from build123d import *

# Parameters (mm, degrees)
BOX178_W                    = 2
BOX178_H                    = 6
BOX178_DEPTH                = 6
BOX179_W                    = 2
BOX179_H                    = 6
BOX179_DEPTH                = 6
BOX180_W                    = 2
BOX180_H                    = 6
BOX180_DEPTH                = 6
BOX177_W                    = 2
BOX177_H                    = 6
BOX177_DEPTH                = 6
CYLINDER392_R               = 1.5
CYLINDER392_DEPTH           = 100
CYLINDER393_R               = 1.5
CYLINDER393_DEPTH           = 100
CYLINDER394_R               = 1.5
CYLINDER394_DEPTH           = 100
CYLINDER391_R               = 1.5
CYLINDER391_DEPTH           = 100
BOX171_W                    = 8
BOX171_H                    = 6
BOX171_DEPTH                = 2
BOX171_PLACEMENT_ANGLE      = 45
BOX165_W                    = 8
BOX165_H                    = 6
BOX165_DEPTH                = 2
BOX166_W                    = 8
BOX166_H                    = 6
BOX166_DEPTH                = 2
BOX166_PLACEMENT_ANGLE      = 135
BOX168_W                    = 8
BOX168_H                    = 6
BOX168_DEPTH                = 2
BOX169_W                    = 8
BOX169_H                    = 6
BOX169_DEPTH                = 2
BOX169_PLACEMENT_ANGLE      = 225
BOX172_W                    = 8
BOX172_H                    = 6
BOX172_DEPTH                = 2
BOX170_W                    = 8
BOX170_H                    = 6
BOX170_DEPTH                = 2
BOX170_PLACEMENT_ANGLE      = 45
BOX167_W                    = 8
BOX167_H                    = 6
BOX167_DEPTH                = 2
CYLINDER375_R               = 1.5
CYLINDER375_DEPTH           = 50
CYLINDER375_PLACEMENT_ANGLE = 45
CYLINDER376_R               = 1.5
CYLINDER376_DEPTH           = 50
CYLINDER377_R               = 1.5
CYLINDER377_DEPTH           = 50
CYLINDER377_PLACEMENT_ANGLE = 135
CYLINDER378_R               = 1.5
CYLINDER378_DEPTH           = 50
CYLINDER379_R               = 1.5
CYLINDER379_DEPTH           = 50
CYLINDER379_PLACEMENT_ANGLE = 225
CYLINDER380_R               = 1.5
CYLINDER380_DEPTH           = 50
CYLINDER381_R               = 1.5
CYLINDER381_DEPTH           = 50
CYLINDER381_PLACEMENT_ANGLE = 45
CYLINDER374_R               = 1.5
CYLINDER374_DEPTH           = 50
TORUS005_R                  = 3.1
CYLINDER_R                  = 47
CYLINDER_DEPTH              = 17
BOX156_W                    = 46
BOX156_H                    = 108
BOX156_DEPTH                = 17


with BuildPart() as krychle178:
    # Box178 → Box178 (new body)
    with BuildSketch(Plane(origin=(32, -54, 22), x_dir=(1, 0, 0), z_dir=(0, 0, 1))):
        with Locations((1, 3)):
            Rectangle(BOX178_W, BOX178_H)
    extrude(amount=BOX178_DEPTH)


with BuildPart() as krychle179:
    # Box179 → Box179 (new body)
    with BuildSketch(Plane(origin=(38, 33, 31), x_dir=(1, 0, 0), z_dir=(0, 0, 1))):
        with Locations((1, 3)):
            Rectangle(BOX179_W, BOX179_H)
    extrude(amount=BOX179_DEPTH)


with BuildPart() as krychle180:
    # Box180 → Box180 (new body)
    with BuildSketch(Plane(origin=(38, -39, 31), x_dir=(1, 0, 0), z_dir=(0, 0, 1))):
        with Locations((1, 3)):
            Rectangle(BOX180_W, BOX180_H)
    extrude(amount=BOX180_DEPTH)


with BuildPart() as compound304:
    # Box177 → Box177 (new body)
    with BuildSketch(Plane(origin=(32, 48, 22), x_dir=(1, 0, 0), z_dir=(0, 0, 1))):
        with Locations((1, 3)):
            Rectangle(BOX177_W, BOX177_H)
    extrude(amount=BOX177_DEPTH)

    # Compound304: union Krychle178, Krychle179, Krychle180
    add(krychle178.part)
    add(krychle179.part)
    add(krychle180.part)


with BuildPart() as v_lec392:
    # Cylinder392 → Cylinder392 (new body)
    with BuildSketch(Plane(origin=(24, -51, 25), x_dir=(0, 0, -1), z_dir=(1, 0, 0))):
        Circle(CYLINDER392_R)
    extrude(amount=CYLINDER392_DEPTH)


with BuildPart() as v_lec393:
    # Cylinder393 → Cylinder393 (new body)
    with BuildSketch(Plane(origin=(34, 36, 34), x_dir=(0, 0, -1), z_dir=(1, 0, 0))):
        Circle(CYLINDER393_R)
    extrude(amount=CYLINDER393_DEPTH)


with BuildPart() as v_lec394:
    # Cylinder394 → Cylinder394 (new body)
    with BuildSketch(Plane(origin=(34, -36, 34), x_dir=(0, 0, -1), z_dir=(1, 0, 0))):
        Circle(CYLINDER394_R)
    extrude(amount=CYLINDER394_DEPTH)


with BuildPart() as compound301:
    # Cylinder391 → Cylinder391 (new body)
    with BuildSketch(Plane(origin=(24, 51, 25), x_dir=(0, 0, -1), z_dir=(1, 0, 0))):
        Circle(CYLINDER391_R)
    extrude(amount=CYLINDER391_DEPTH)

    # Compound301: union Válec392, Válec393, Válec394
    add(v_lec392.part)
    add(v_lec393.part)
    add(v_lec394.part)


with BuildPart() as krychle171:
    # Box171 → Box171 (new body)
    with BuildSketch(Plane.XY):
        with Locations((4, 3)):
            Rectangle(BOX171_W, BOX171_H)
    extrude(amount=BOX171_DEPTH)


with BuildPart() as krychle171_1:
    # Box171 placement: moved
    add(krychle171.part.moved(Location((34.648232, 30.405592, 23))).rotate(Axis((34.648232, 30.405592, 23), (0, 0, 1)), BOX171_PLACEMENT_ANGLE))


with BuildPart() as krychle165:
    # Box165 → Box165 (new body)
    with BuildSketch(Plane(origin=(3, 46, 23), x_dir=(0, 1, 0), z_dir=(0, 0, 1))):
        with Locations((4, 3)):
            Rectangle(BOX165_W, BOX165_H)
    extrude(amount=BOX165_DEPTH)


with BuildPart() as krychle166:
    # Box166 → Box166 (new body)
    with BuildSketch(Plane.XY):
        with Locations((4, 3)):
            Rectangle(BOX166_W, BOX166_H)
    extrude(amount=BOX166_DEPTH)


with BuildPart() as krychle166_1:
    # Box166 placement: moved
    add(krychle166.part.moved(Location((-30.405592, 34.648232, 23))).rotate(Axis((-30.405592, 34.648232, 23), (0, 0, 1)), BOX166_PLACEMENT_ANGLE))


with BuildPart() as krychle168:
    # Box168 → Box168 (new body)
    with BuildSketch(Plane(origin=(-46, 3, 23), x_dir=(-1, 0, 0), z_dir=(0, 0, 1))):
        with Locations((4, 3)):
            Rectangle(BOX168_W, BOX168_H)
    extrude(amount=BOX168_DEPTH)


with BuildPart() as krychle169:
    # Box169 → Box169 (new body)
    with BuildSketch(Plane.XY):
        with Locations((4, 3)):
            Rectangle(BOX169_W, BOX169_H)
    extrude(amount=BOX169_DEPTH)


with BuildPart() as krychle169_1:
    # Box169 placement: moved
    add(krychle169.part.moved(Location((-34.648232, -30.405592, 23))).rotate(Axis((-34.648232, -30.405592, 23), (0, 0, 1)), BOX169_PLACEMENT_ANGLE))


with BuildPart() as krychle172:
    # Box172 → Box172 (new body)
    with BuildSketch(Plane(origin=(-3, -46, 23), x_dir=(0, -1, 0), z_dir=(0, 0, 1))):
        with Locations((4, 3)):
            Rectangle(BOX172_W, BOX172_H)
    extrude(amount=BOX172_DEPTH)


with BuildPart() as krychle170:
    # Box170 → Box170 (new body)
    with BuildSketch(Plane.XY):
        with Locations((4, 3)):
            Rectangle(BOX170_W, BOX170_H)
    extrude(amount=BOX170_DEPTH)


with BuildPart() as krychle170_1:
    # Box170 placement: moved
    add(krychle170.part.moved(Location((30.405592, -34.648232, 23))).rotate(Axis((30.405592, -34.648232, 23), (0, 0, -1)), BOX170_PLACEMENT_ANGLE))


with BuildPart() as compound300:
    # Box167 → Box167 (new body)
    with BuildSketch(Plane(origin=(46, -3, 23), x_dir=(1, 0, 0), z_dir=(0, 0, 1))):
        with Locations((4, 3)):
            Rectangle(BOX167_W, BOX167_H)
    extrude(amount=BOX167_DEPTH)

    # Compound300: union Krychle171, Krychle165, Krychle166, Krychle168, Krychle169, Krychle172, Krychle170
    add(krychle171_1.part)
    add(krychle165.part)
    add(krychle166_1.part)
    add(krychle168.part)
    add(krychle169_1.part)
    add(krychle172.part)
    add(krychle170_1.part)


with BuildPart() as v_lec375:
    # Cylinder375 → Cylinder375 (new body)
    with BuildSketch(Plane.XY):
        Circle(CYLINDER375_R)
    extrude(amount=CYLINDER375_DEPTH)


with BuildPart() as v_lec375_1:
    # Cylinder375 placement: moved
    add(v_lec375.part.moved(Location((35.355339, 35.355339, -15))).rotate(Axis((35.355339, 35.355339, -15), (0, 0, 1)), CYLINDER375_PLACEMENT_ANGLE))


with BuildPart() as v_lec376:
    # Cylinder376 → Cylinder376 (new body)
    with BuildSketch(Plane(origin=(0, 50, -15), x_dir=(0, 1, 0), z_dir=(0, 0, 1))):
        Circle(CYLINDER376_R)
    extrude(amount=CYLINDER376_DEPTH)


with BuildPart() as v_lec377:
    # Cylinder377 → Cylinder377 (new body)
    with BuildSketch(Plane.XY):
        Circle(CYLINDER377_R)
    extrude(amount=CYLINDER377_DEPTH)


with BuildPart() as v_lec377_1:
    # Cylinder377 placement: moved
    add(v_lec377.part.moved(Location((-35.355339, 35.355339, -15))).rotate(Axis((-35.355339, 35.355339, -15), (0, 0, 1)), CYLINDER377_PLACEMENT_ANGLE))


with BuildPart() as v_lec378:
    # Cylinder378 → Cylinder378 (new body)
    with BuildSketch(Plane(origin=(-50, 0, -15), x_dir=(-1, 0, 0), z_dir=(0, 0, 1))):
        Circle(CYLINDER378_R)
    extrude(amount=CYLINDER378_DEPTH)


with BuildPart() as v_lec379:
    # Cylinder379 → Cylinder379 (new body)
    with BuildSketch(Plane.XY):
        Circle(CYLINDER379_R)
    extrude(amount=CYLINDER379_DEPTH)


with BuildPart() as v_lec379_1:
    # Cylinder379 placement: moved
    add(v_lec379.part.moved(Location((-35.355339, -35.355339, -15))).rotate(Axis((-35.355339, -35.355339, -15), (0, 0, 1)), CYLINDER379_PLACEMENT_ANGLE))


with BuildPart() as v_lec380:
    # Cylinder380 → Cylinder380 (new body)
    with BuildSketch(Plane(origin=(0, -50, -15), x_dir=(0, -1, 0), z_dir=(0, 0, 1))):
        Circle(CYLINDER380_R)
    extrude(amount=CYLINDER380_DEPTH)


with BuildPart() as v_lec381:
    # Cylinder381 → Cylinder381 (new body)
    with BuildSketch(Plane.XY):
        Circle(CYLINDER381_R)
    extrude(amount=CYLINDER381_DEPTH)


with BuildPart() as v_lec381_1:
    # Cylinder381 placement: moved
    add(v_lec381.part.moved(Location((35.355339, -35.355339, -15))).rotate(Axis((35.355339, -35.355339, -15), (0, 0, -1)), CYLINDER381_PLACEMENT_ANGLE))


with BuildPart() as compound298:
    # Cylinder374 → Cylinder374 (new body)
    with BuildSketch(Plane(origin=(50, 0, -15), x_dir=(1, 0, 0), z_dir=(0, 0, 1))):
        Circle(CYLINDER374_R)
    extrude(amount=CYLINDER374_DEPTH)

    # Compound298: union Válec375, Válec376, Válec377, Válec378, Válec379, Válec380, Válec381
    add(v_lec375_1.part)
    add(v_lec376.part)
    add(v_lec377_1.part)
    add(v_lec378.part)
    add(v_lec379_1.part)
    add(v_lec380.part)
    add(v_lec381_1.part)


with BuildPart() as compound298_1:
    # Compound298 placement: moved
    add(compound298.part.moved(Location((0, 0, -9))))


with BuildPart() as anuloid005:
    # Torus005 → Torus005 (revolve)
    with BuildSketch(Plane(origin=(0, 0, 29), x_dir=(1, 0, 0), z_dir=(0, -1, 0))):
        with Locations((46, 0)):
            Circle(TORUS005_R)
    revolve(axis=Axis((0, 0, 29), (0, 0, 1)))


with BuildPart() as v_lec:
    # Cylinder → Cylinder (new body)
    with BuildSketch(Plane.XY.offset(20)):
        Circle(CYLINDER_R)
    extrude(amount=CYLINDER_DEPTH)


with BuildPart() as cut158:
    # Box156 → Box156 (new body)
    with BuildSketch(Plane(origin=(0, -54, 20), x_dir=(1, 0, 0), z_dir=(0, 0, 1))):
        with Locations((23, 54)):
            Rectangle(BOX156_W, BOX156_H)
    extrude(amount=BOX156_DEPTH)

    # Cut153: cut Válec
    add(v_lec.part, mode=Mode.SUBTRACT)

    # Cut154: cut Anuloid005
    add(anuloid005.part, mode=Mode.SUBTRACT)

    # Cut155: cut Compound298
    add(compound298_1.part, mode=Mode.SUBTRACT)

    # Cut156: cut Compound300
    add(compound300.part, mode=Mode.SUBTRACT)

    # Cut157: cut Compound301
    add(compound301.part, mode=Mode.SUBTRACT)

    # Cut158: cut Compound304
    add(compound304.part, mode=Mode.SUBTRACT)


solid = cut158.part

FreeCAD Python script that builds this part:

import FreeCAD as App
import Part
import Sketcher

V = App.Vector

doc = App.newDocument("Part")
body = doc.addObject("PartDesign::Body", "Body")

# Sketch on XY plane
sketch1 = body.newObject("Sketcher::SketchObject", "Sketch")
sketch1.AttachmentSupport = (doc.getObject("XY_Plane"), [""])
sketch1.MapMode = "FlatFace"
sketch1.AttachmentOffset = App.Placement(V(0, 0, 22), App.Rotation())
sketch1.addGeometry(Part.LineSegment(V(32, -48, 0), V(32, -54, 0)), False)
sketch1.addGeometry(Part.LineSegment(V(32, -54, 0), V(34, -54, 0)), False)
sketch1.addGeometry(Part.LineSegment(V(34, -54, 0), V(34, -48, 0)), False)
sketch1.addGeometry(Part.LineSegment(V(34, -48, 0), V(32, -48, 0)), False)
sketch1.addConstraint(Sketcher.Constraint("Coincident", 0, 2, 1, 1))
sketch1.addConstraint(Sketcher.Constraint("Coincident", 1, 2, 2, 1))
sketch1.addConstraint(Sketcher.Constraint("Coincident", 2, 2, 3, 1))
sketch1.addConstraint(Sketcher.Constraint("Coincident", 3, 2, 0, 1))
sketch1.addConstraint(Sketcher.Constraint("Vertical", 0))
sketch1.addConstraint(Sketcher.Constraint("Horizontal", 1))
sketch1.addConstraint(Sketcher.Constraint("Vertical", 2))
sketch1.addConstraint(Sketcher.Constraint("Horizontal", 3))
sketch1.addConstraint(Sketcher.Constraint("DistanceX", 1, 1, 1, 2, 2.0))
sketch1.addConstraint(Sketcher.Constraint("DistanceY", 0, 2, 0, 1, 6.0))
sketch1.addConstraint(Sketcher.Constraint("DistanceX", -1, 1, 0, 2, 32.0))
sketch1.addConstraint(Sketcher.Constraint("DistanceY", 0, 2, -1, 1, 54.0))
pad1 = body.newObject("PartDesign::Pad", "Pad")
pad1.Profile = sketch1
pad1.Length = 6
body2 = doc.addObject("PartDesign::Body", "Body001")

# Sketch on XY plane
sketch2 = body2.newObject("Sketcher::SketchObject", "Sketch001")
sketch2.AttachmentSupport = (doc.getObject("XY_Plane001"), [""])
sketch2.MapMode = "FlatFace"
sketch2.AttachmentOffset = App.Placement(V(0, 0, 31), App.Rotation())
sketch2.addGeometry(Part.LineSegment(V(38, 39, 0), V(38, 33, 0)), False)
sketch2.addGeometry(Part.LineSegment(V(38, 33, 0), V(40, 33, 0)), False)
sketch2.addGeometry(Part.LineSegment(V(40, 33, 0), V(40, 39, 0)), False)
sketch2.addGeometry(Part.LineSegment(V(40, 39, 0), V(38, 39, 0)), False)
sketch2.addConstraint(Sketcher.Constraint("Coincident", 0, 2, 1, 1))
sketch2.addConstraint(Sketcher.Constraint("Coincident", 1, 2, 2, 1))
sketch2.addConstraint(Sketcher.Constraint("Coincident", 2, 2, 3, 1))
sketch2.addConstraint(Sketcher.Constraint("Coincident", 3, 2, 0, 1))
sketch2.addConstraint(Sketcher.Constraint("Vertical", 0))
sketch2.addConstraint(Sketcher.Constraint("Horizontal", 1))
sketch2.addConstraint(Sketcher.Constraint("Vertical", 2))
sketch2.addConstraint(Sketcher.Constraint("Horizontal", 3))
sketch2.addConstraint(Sketcher.Constraint("DistanceX", 1, 1, 1, 2, 2.0))
sketch2.addConstraint(Sketcher.Constraint("DistanceY", 0, 2, 0, 1, 6.0))
sketch2.addConstraint(Sketcher.Constraint("DistanceX", -1, 1, 0, 2, 38.0))
sketch2.addConstraint(Sketcher.Constraint("DistanceY", -1, 1, 0, 2, 33.0))
pad2 = body2.newObject("PartDesign::Pad", "Pad001")
pad2.Profile = sketch2
pad2.Length = 6
body3 = doc.addObject("PartDesign::Body", "Body002")

# Sketch on XY plane
sketch3 = body3.newObject("Sketcher::SketchObject", "Sketch002")
sketch3.AttachmentSupport = (doc.getObject("XY_Plane002"), [""])
sketch3.MapMode = "FlatFace"
sketch3.AttachmentOffset = App.Placement(V(0, 0, 31), App.Rotation())
sketch3.addGeometry(Part.LineSegment(V(38, -33, 0), V(38, -39, 0)), False)
sketch3.addGeometry(Part.LineSegment(V(38, -39, 0), V(40, -39, 0)), False)
sketch3.addGeometry(Part.LineSegment(V(40, -39, 0), V(40, -33, 0)), False)
sketch3.addGeometry(Part.LineSegment(V(40, -33, 0), V(38, -33, 0)), False)
sketch3.addConstraint(Sketcher.Constraint("Coincident", 0, 2, 1, 1))
sketch3.addConstraint(Sketcher.Constraint("Coincident", 1, 2, 2, 1))
sketch3.addConstraint(Sketcher.Constraint("Coincident", 2, 2, 3, 1))
sketch3.addConstraint(Sketcher.Constraint("Coincident", 3, 2, 0, 1))
sketch3.addConstraint(Sketcher.Constraint("Vertical", 0))
sketch3.addConstraint(Sketcher.Constraint("Horizontal", 1))
sketch3.addConstraint(Sketcher.Constraint("Vertical", 2))
sketch3.addConstraint(Sketcher.Constraint("Horizontal", 3))
sketch3.addConstraint(Sketcher.Constraint("DistanceX", 1, 1, 1, 2, 2.0))
sketch3.addConstraint(Sketcher.Constraint("DistanceY", 0, 2, 0, 1, 6.0))
sketch3.addConstraint(Sketcher.Constraint("DistanceX", -1, 1, 0, 2, 38.0))
sketch3.addConstraint(Sketcher.Constraint("DistanceY", 0, 2, -1, 1, 39.0))
pad3 = body3.newObject("PartDesign::Pad", "Pad002")
pad3.Profile = sketch3
pad3.Length = 6
body4 = doc.addObject("PartDesign::Body", "Body003")
body4.AllowCompound = True

# Sketch on XY plane
sketch4 = body4.newObject("Sketcher::SketchObject", "Sketch003")
sketch4.AttachmentSupport = (doc.getObject("XY_Plane003"), [""])
sketch4.MapMode = "FlatFace"
sketch4.AttachmentOffset = App.Placement(V(0, 0, 22), App.Rotation())
sketch4.addGeometry(Part.LineSegment(V(32, 54, 0), V(32, 48, 0)), False)
sketch4.addGeometry(Part.LineSegment(V(32, 48, 0), V(34, 48, 0)), False)
sketch4.addGeometry(Part.LineSegment(V(34, 48, 0), V(34, 54, 0)), False)
sketch4.addGeometry(Part.LineSegment(V(34, 54, 0), V(32, 54, 0)), False)
sketch4.addConstraint(Sketcher.Constraint("Coincident", 0, 2, 1, 1))
sketch4.addConstraint(Sketcher.Constraint("Coincident", 1, 2, 2, 1))
sketch4.addConstraint(Sketcher.Constraint("Coincident", 2, 2, 3, 1))
sketch4.addConstraint(Sketcher.Constraint("Coincident", 3, 2, 0, 1))
sketch4.addConstraint(Sketcher.Constraint("Vertical", 0))
sketch4.addConstraint(Sketcher.Constraint("Horizontal", 1))
sketch4.addConstraint(Sketcher.Constraint("Vertical", 2))
sketch4.addConstraint(Sketcher.Constraint("Horizontal", 3))
sketch4.addConstraint(Sketcher.Constraint("DistanceX", 1, 1, 1, 2, 2.0))
sketch4.addConstraint(Sketcher.Constraint("DistanceY", 0, 2, 0, 1, 6.0))
sketch4.addConstraint(Sketcher.Constraint("DistanceX", -1, 1, 0, 2, 32.0))
sketch4.addConstraint(Sketcher.Constraint("DistanceY", -1, 1, 0, 2, 48.0))
pad4 = body4.newObject("PartDesign::Pad", "Pad003")
pad4.Profile = sketch4
pad4.Length = 6
doc.recompute()

boolean = body4.newObject("PartDesign::Boolean", "Boolean")
boolean.Type = "Fuse"
boolean.addObjects([body])
doc.recompute()

boolean2 = body4.newObject("PartDesign::Boolean", "Boolean001")
boolean2.Type = "Fuse"
boolean2.addObjects([body2])
doc.recompute()

boolean3 = body4.newObject("PartDesign::Boolean", "Boolean002")
boolean3.Type = "Fuse"
boolean3.addObjects([body3])
body5 = doc.addObject("PartDesign::Body", "Body004")

# Sketch on YZ plane
sketch5 = body5.newObject("Sketcher::SketchObject", "Sketch004")
sketch5.AttachmentSupport = (doc.getObject("YZ_Plane004"), [""])
sketch5.MapMode = "FlatFace"
sketch5.AttachmentOffset = App.Placement(V(0, 0, 24), App.Rotation())
sketch5.addGeometry(Part.Circle(V(-51, 25, 0), V(0, 0, 1), 1.5), False)
sketch5.addConstraint(Sketcher.Constraint("Diameter", 0, 3.0))
sketch5.addConstraint(Sketcher.Constraint("DistanceX", 0, 3, -1, 1, 51.0))
sketch5.addConstraint(Sketcher.Constraint("DistanceY", -1, 1, 0, 3, 25.0))
pad5 = body5.newObject("PartDesign::Pad", "Pad004")
pad5.Profile = sketch5
pad5.Length = 100
body6 = doc.addObject("PartDesign::Body", "Body005")

# Sketch on YZ plane
sketch6 = body6.newObject("Sketcher::SketchObject", "Sketch005")
sketch6.AttachmentSupport = (doc.getObject("YZ_Plane005"), [""])
sketch6.MapMode = "FlatFace"
sketch6.AttachmentOffset = App.Placement(V(0, 0, 34), App.Rotation())
sketch6.addGeometry(Part.Circle(V(36, 34, 0), V(0, 0, 1), 1.5), False)
sketch6.addConstraint(Sketcher.Constraint("Diameter", 0, 3.0))
sketch6.addConstraint(Sketcher.Constraint("DistanceX", -1, 1, 0, 3, 36.0))
sketch6.addConstraint(Sketcher.Constraint("DistanceY", -1, 1, 0, 3, 34.0))
pad6 = body6.newObject("PartDesign::Pad", "Pad005")
pad6.Profile = sketch6
pad6.Length = 100
body7 = doc.addObject("PartDesign::Body", "Body006")

# Sketch on YZ plane
sketch7 = body7.newObject("Sketcher::SketchObject", "Sketch006")
sketch7.AttachmentSupport = (doc.getObject("YZ_Plane006"), [""])
sketch7.MapMode = "FlatFace"
sketch7.AttachmentOffset = App.Placement(V(0, 0, 34), App.Rotation())
sketch7.addGeometry(Part.Circle(V(-36, 34, 0), V(0, 0, 1), 1.5), False)
sketch7.addConstraint(Sketcher.Constraint("Diameter", 0, 3.0))
sketch7.addConstraint(Sketcher.Constraint("DistanceX", 0, 3, -1, 1, 36.0))
sketch7.addConstraint(Sketcher.Constraint("DistanceY", -1, 1, 0, 3, 34.0))
pad7 = body7.newObject("PartDesign::Pad", "Pad006")
pad7.Profile = sketch7
pad7.Length = 100
body8 = doc.addObject("PartDesign::Body", "Body007")
body8.AllowCompound = True

# Sketch on YZ plane
sketch8 = body8.newObject("Sketcher::SketchObject", "Sketch007")
sketch8.AttachmentSupport = (doc.getObject("YZ_Plane007"), [""])
sketch8.MapMode = "FlatFace"
sketch8.AttachmentOffset = App.Placement(V(0, 0, 24), App.Rotation())
sketch8.addGeometry(Part.Circle(V(51, 25, 0), V(0, 0, 1), 1.5), False)
sketch8.addConstraint(Sketcher.Constraint("Diameter", 0, 3.0))
sketch8.addConstraint(Sketcher.Constraint("DistanceX", -1, 1, 0, 3, 51.0))
sketch8.addConstraint(Sketcher.Constraint("DistanceY", -1, 1, 0, 3, 25.0))
pad8 = body8.newObject("PartDesign::Pad", "Pad007")
pad8.Profile = sketch8
pad8.Length = 100
doc.recompute()

boolean4 = body8.newObject("PartDesign::Boolean", "Boolean003")
boolean4.Type = "Fuse"
boolean4.addObjects([body5])
doc.recompute()

boolean5 = body8.newObject("PartDesign::Boolean", "Boolean004")
boolean5.Type = "Fuse"
boolean5.addObjects([body6])
doc.recompute()

boolean6 = body8.newObject("PartDesign::Boolean", "Boolean005")
boolean6.Type = "Fuse"
boolean6.addObjects([body7])
body9 = doc.addObject("PartDesign::Body", "Body008")

# Sketch on XY plane
sketch9 = body9.newObject("Sketcher::SketchObject", "Sketch008")
sketch9.AttachmentSupport = (doc.getObject("XY_Plane008"), [""])
sketch9.MapMode = "FlatFace"
sketch9.addGeometry(Part.LineSegment(V(0, 6, 0), V(0, 0, 0)), False)
sketch9.addGeometry(Part.LineSegment(V(0, 0, 0), V(8, 0, 0)), False)
sketch9.addGeometry(Part.LineSegment(V(8, 0, 0), V(8, 6, 0)), False)
sketch9.addGeometry(Part.LineSegment(V(8, 6, 0), V(0, 6, 0)), False)
sketch9.addConstraint(Sketcher.Constraint("Coincident", 0, 2, 1, 1))
sketch9.addConstraint(Sketcher.Constraint("Coincident", 1, 2, 2, 1))
sketch9.addConstraint(Sketcher.Constraint("Coincident", 2, 2, 3, 1))
sketch9.addConstraint(Sketcher.Constraint("Coincident", 3, 2, 0, 1))
sketch9.addConstraint(Sketcher.Constraint("Vertical", 0))
sketch9.addConstraint(Sketcher.Constraint("Horizontal", 1))
sketch9.addConstraint(Sketcher.Constraint("Vertical", 2))
sketch9.addConstraint(Sketcher.Constraint("Horizontal", 3))
sketch9.addConstraint(Sketcher.Constraint("Coincident", 0, 2, -1, 1))
sketch9.addConstraint(Sketcher.Constraint("DistanceX", 1, 1, 1, 2, 8.0))
sketch9.addConstraint(Sketcher.Constraint("DistanceY", 0, 2, 0, 1, 6.0))
pad9 = body9.newObject("PartDesign::Pad", "Pad008")
pad9.Profile = sketch9
pad9.Length = 2
body10 = doc.addObject("PartDesign::Body", "Body009")
doc.recompute()

body9.Placement = App.Placement(V(34.648232, 30.405592, 23), App.Rotation(V(0, 0, 1), 45))
boolean7 = body10.newObject("PartDesign::Boolean", "Boolean006")
boolean7.Type = "Fuse"
boolean7.addObjects([body9])
body11 = doc.addObject("PartDesign::Body", "Body010")

# Sketch on XY plane
sketch10 = body11.newObject("Sketcher::SketchObject", "Sketch009")
sketch10.AttachmentSupport = (doc.getObject("XY_Plane010"), [""])
sketch10.MapMode = "FlatFace"
sketch10.AttachmentOffset = App.Placement(V(0, 0, 23), App.Rotation())
sketch10.addGeometry(Part.LineSegment(V(-3, 46, 0), V(3, 46, 0)), False)
sketch10.addGeometry(Part.LineSegment(V(3, 46, 0), V(3, 54, 0)), False)
sketch10.addGeometry(Part.LineSegment(V(3, 54, 0), V(-3, 54, 0)), False)
sketch10.addGeometry(Part.LineSegment(V(-3, 54, 0), V(-3, 46, 0)), False)
sketch10.addConstraint(Sketcher.Constraint("Coincident", 0, 2, 1, 1))
sketch10.addConstraint(Sketcher.Constraint("Coincident", 1, 2, 2, 1))
sketch10.addConstraint(Sketcher.Constraint("Coincident", 2, 2, 3, 1))
sketch10.addConstraint(Sketcher.Constraint("Coincident", 3, 2, 0, 1))
sketch10.addConstraint(Sketcher.Constraint("Horizontal", 0))
sketch10.addConstraint(Sketcher.Constraint("Vertical", 1))
sketch10.addConstraint(Sketcher.Constraint("Horizontal", 2))
sketch10.addConstraint(Sketcher.Constraint("Vertical", 3))
sketch10.addConstraint(Sketcher.Constraint("DistanceX", 0, 1, 0, 2, 6.0))
sketch10.addConstraint(Sketcher.Constraint("DistanceY", 1, 1, 1, 2, 8.0))
sketch10.addConstraint(Sketcher.Constraint("DistanceX", -1, 1, 0, 2, 3.0))
sketch10.addConstraint(Sketcher.Constraint("DistanceY", -1, 1, 0, 2, 46.0))
pad10 = body11.newObject("PartDesign::Pad", "Pad009")
pad10.Profile = sketch10
pad10.Length = 2
body12 = doc.addObject("PartDesign::Body", "Body011")

# Sketch on XY plane
sketch11 = body12.newObject("Sketcher::SketchObject", "Sketch010")
sketch11.AttachmentSupport = (doc.getObject("XY_Plane011"), [""])
sketch11.MapMode = "FlatFace"
sketch11.addGeometry(Part.LineSegment(V(0, 6, 0), V(0, 0, 0)), False)
sketch11.addGeometry(Part.LineSegment(V(0, 0, 0), V(8, 0, 0)), False)
sketch11.addGeometry(Part.LineSegment(V(8, 0, 0), V(8, 6, 0)), False)
sketch11.addGeometry(Part.LineSegment(V(8, 6, 0), V(0, 6, 0)), False)
sketch11.addConstraint(Sketcher.Constraint("Coincident", 0, 2, 1, 1))
sketch11.addConstraint(Sketcher.Constraint("Coincident", 1, 2, 2, 1))
sketch11.addConstraint(Sketcher.Constraint("Coincident", 2, 2, 3, 1))
sketch11.addConstraint(Sketcher.Constraint("Coincident", 3, 2, 0, 1))
sketch11.addConstraint(Sketcher.Constraint("Vertical", 0))
sketch11.addConstraint(Sketcher.Constraint("Horizontal", 1))
sketch11.addConstraint(Sketcher.Constraint("Vertical", 2))
sketch11.addConstraint(Sketcher.Constraint("Horizontal", 3))
sketch11.addConstraint(Sketcher.Constraint("Coincident", 0, 2, -1, 1))
sketch11.addConstraint(Sketcher.Constraint("DistanceX", 1, 1, 1, 2, 8.0))
sketch11.addConstraint(Sketcher.Constraint("DistanceY", 0, 2, 0, 1, 6.0))
pad11 = body12.newObject("PartDesign::Pad", "Pad010")
pad11.Profile = sketch11
pad11.Length = 2
body13 = doc.addObject("PartDesign::Body", "Body012")
doc.recompute()

body12.Placement = App.Placement(V(-30.405592, 34.648232, 23), App.Rotation(V(0, 0, 1), 135))
boolean8 = body13.newObject("PartDesign::Boolean", "Boolean007")
boolean8.Type = "Fuse"
boolean8.addObjects([body12])
body14 = doc.addObject("PartDesign::Body", "Body013")

# Sketch on XY plane
sketch12 = body14.newObject("Sketcher::SketchObject", "Sketch011")
sketch12.AttachmentSupport = (doc.getObject("XY_Plane013"), [""])
sketch12.MapMode = "FlatFace"
sketch12.AttachmentOffset = App.Placement(V(0, 0, 23), App.Rotation())
sketch12.addGeometry(Part.LineSegment(V(-46, -3, 0), V(-46, 3, 0)), False)
sketch12.addGeometry(Part.LineSegment(V(-46, 3, 0), V(-54, 3, 0)), False)
sketch12.addGeometry(Part.LineSegment(V(-54, 3, 0), V(-54, -3, 0)), False)
sketch12.addGeometry(Part.LineSegment(V(-54, -3, 0), V(-46, -3, 0)), False)
sketch12.addConstraint(Sketcher.Constraint("Coincident", 0, 2, 1, 1))
sketch12.addConstraint(Sketcher.Constraint("Coincident", 1, 2, 2, 1))
sketch12.addConstraint(Sketcher.Constraint("Coincident", 2, 2, 3, 1))
sketch12.addConstraint(Sketcher.Constraint("Coincident", 3, 2, 0, 1))
sketch12.addConstraint(Sketcher.Constraint("Vertical", 0))
sketch12.addConstraint(Sketcher.Constraint("Horizontal", 1))
sketch12.addConstraint(Sketcher.Constraint("Vertical", 2))
sketch12.addConstraint(Sketcher.Constraint("Horizontal", 3))
sketch12.addConstraint(Sketcher.Constraint("DistanceX", 1, 2, 1, 1, 8.0))
sketch12.addConstraint(Sketcher.Constraint("DistanceY", 0, 1, 0, 2, 6.0))
sketch12.addConstraint(Sketcher.Constraint("DistanceX", 0, 2, -1, 1, 46.0))
sketch12.addConstraint(Sketcher.Constraint("DistanceY", -1, 1, 0, 2, 3.0))
pad12 = body14.newObject("PartDesign::Pad", "Pad011")
pad12.Profile = sketch12
pad12.Length = 2
body15 = doc.addObject("PartDesign::Body", "Body014")

# Sketch on XY plane
sketch13 = body15.newObject("Sketcher::SketchObject", "Sketch012")
sketch13.AttachmentSupport = (doc.getObject("XY_Plane014"), [""])
sketch13.MapMode = "FlatFace"
sketch13.addGeometry(Part.LineSegment(V(0, 6, 0), V(0, 0, 0)), False)
sketch13.addGeometry(Part.LineSegment(V(0, 0, 0), V(8, 0, 0)), False)
sketch13.addGeometry(Part.LineSegment(V(8, 0, 0), V(8, 6, 0)), False)
sketch13.addGeometry(Part.LineSegment(V(8, 6, 0), V(0, 6, 0)), False)
sketch13.addConstraint(Sketcher.Constraint("Coincident", 0, 2, 1, 1))
sketch13.addConstraint(Sketcher.Constraint("Coincident", 1, 2, 2, 1))
sketch13.addConstraint(Sketcher.Constraint("Coincident", 2, 2, 3, 1))
sketch13.addConstraint(Sketcher.Constraint("Coincident", 3, 2, 0, 1))
sketch13.addConstraint(Sketcher.Constraint("Vertical", 0))
sketch13.addConstraint(Sketcher.Constraint("Horizontal", 1))
sketch13.addConstraint(Sketcher.Constraint("Vertical", 2))
sketch13.addConstraint(Sketcher.Constraint("Horizontal", 3))
sketch13.addConstraint(Sketcher.Constraint("Coincident", 0, 2, -1, 1))
sketch13.addConstraint(Sketcher.Constraint("DistanceX", 1, 1, 1, 2, 8.0))
sketch13.addConstraint(Sketcher.Constraint("DistanceY", 0, 2, 0, 1, 6.0))
pad13 = body15.newObject("PartDesign::Pad", "Pad012")
pad13.Profile = sketch13
pad13.Length = 2
body16 = doc.addObject("PartDesign::Body", "Body015")
doc.recompute()

body15.Placement = App.Placement(V(-34.648232, -30.405592, 23), App.Rotation(V(0, 0, 1), 225))
boolean9 = body16.newObject("PartDesign::Boolean", "Boolean008")
boolean9.Type = "Fuse"
boolean9.addObjects([body15])
body17 = doc.addObject("PartDesign::Body", "Body016")

# Sketch on XY plane
sketch14 = body17.newObject("Sketcher::SketchObject", "Sketch013")
sketch14.AttachmentSupport = (doc.getObject("XY_Plane016"), [""])
sketch14.MapMode = "FlatFace"
sketch14.AttachmentOffset = App.Placement(V(0, 0, 23), App.Rotation())
sketch14.addGeometry(Part.LineSegment(V(3, -46, 0), V(-3, -46, 0)), False)
sketch14.addGeometry(Part.LineSegment(V(-3, -46, 0), V(-3, -54, 0)), False)
sketch14.addGeometry(Part.LineSegment(V(-3, -54, 0), V(3, -54, 0)), False)
sketch14.addGeometry(Part.LineSegment(V(3, -54, 0), V(3, -46, 0)), False)
sketch14.addConstraint(Sketcher.Constraint("Coincident", 0, 2, 1, 1))
sketch14.addConstraint(Sketcher.Constraint("Coincident", 1, 2, 2, 1))
sketch14.addConstraint(Sketcher.Constraint("Coincident", 2, 2, 3, 1))
sketch14.addConstraint(Sketcher.Constraint("Coincident", 3, 2, 0, 1))
sketch14.addConstraint(Sketcher.Constraint("Horizontal", 0))
sketch14.addConstraint(Sketcher.Constraint("Vertical", 1))
sketch14.addConstraint(Sketcher.Constraint("Horizontal", 2))
sketch14.addConstraint(Sketcher.Constraint("Vertical", 3))
sketch14.addConstraint(Sketcher.Constraint("DistanceX", 0, 2, 0, 1, 6.0))
sketch14.addConstraint(Sketcher.Constraint("DistanceY", 1, 2, 1, 1, 8.0))
sketch14.addConstraint(Sketcher.Constraint("DistanceX", 0, 2, -1, 1, 3.0))
sketch14.addConstraint(Sketcher.Constraint("DistanceY", 0, 2, -1, 1, 46.0))
pad14 = body17.newObject("PartDesign::Pad", "Pad013")
pad14.Profile = sketch14
pad14.Length = 2
body18 = doc.addObject("PartDesign::Body", "Body017")

# Sketch on XY plane
sketch15 = body18.newObject("Sketcher::SketchObject", "Sketch014")
sketch15.AttachmentSupport = (doc.getObject("XY_Plane017"), [""])
sketch15.MapMode = "FlatFace"
sketch15.addGeometry(Part.LineSegment(V(0, 6, 0), V(0, 0, 0)), False)
sketch15.addGeometry(Part.LineSegment(V(0, 0, 0), V(8, 0, 0)), False)
sketch15.addGeometry(Part.LineSegment(V(8, 0, 0), V(8, 6, 0)), False)
sketch15.addGeometry(Part.LineSegment(V(8, 6, 0), V(0, 6, 0)), False)
sketch15.addConstraint(Sketcher.Constraint("Coincident", 0, 2, 1, 1))
sketch15.addConstraint(Sketcher.Constraint("Coincident", 1, 2, 2, 1))
sketch15.addConstraint(Sketcher.Constraint("Coincident", 2, 2, 3, 1))
sketch15.addConstraint(Sketcher.Constraint("Coincident", 3, 2, 0, 1))
sketch15.addConstraint(Sketcher.Constraint("Vertical", 0))
sketch15.addConstraint(Sketcher.Constraint("Horizontal", 1))
sketch15.addConstraint(Sketcher.Constraint("Vertical", 2))
sketch15.addConstraint(Sketcher.Constraint("Horizontal", 3))
sketch15.addConstraint(Sketcher.Constraint("Coincident", 0, 2, -1, 1))
sketch15.addConstraint(Sketcher.Constraint("DistanceX", 1, 1, 1, 2, 8.0))
sketch15.addConstraint(Sketcher.Constraint("DistanceY", 0, 2, 0, 1, 6.0))
pad15 = body18.newObject("PartDesign::Pad", "Pad014")
pad15.Profile = sketch15
pad15.Length = 2
body19 = doc.addObject("PartDesign::Body", "Body018")
doc.recompute()

body18.Placement = App.Placement(V(30.405592, -34.648232, 23), App.Rotation(V(0, 0, -1), 45))
boolean10 = body19.newObject("PartDesign::Boolean", "Boolean009")
boolean10.Type = "Fuse"
boolean10.addObjects([body18])
body20 = doc.addObject("PartDesign::Body", "Body019")
body20.AllowCompound = True

# Sketch on XY plane
sketch16 = body20.newObject("Sketcher::SketchObject", "Sketch015")
sketch16.AttachmentSupport = (doc.getObject("XY_Plane019"), [""])
sketch16.MapMode = "FlatFace"
sketch16.AttachmentOffset = App.Placement(V(0, 0, 23), App.Rotation())
sketch16.addGeometry(Part.LineSegment(V(46, 3, 0), V(46, -3, 0)), False)
sketch16.addGeometry(Part.LineSegment(V(46, -3, 0), V(54, -3, 0)), False)
sketch16.addGeometry(Part.LineSegment(V(54, -3, 0), V(54, 3, 0)), False)
sketch16.addGeometry(Part.LineSegment(V(54, 3, 0), V(46, 3, 0)), False)
sketch16.addConstraint(Sketcher.Constraint("Coincident", 0, 2, 1, 1))
sketch16.addConstraint(Sketcher.Constraint("Coincident", 1, 2, 2, 1))
sketch16.addConstraint(Sketcher.Constraint("Coincident", 2, 2, 3, 1))
sketch16.addConstraint(Sketcher.Constraint("Coincident", 3, 2, 0, 1))
sketch16.addConstraint(Sketcher.Constraint("Vertical", 0))
sketch16.addConstraint(Sketcher.Constraint("Horizontal", 1))
sketch16.addConstraint(Sketcher.Constraint("Vertical", 2))
sketch16.addConstraint(Sketcher.Constraint("Horizontal", 3))
sketch16.addConstraint(Sketcher.Constraint("DistanceX", 1, 1, 1, 2, 8.0))
sketch16.addConstraint(Sketcher.Constraint("DistanceY", 0, 2, 0, 1, 6.0))
sketch16.addConstraint(Sketcher.Constraint("DistanceX", -1, 1, 0, 2, 46.0))
sketch16.addConstraint(Sketcher.Constraint("DistanceY", 0, 2, -1, 1, 3.0))
pad16 = body20.newObject("PartDesign::Pad", "Pad015")
pad16.Profile = sketch16
pad16.Length = 2
doc.recompute()

boolean11 = body20.newObject("PartDesign::Boolean", "Boolean010")
boolean11.Type = "Fuse"
boolean11.addObjects([body10])
doc.recompute()

boolean12 = body20.newObject("PartDesign::Boolean", "Boolean011")
boolean12.Type = "Fuse"
boolean12.addObjects([body11])
doc.recompute()

boolean13 = body20.newObject("PartDesign::Boolean", "Boolean012")
boolean13.Type = "Fuse"
boolean13.addObjects([body13])
doc.recompute()

boolean14 = body20.newObject("PartDesign::Boolean", "Boolean013")
boolean14.Type = "Fuse"
boolean14.addObjects([body14])
doc.recompute()

boolean15 = body20.newObject("PartDesign::Boolean", "Boolean014")
boolean15.Type = "Fuse"
boolean15.addObjects([body16])
doc.recompute()

boolean16 = body20.newObject("PartDesign::Boolean", "Boolean015")
boolean16.Type = "Fuse"
boolean16.addObjects([body17])
doc.recompute()

boolean17 = body20.newObject("PartDesign::Boolean", "Boolean016")
boolean17.Type = "Fuse"
boolean17.addObjects([body19])
body21 = doc.addObject("PartDesign::Body", "Body020")

# Sketch on XY plane
sketch17 = body21.newObject("Sketcher::SketchObject", "Sketch016")
sketch17.AttachmentSupport = (doc.getObject("XY_Plane020"), [""])
sketch17.MapMode = "FlatFace"
sketch17.addGeometry(Part.Circle(V(0, 0, 0), V(0, 0, 1), 1.5), False)
sketch17.addConstraint(Sketcher.Constraint("Coincident", 0, 3, -1, 1))
sketch17.addConstraint(Sketcher.Constraint("Diameter", 0, 3.0))
pad17 = body21.newObject("PartDesign::Pad", "Pad016")
pad17.Profile = sketch17
pad17.Length = 50
body22 = doc.addObject("PartDesign::Body", "Body021")
doc.recompute()

body21.Placement = App.Placement(V(35.355339, 35.355339, -15), App.Rotation(V(0, 0, 1), 45))
boolean18 = body22.newObject("PartDesign::Boolean", "Boolean017")
boolean18.Type = "Fuse"
boolean18.addObjects([body21])
body23 = doc.addObject("PartDesign::Body", "Body022")

# Sketch on XY plane
sketch18 = body23.newObject("Sketcher::SketchObject", "Sketch017")
sketch18.AttachmentSupport = (doc.getObject("XY_Plane022"), [""])
sketch18.MapMode = "FlatFace"
sketch18.AttachmentOffset = App.Placement(V(0, 0, -15), App.Rotation())
sketch18.addGeometry(Part.Circle(V(0, 50, 0), V(0, 0, 1), 1.5), False)
sketch18.addConstraint(Sketcher.Constraint("PointOnObject", 0, 3, -2))
sketch18.addConstraint(Sketcher.Constraint("Diameter", 0, 3.0))
sketch18.addConstraint(Sketcher.Constraint("DistanceY", -1, 1, 0, 3, 50.0))
pad18 = body23.newObject("PartDesign::Pad", "Pad017")
pad18.Profile = sketch18
pad18.Length = 50
body24 = doc.addObject("PartDesign::Body", "Body023")

# Sketch on XY plane
sketch19 = body24.newObject("Sketcher::SketchObject", "Sketch018")
sketch19.AttachmentSupport = (doc.getObject("XY_Plane023"), [""])
sketch19.MapMode = "FlatFace"
sketch19.addGeometry(Part.Circle(V(0, 0, 0), V(0, 0, 1), 1.5), False)
sketch19.addConstraint(Sketcher.Constraint("Coincident", 0, 3, -1, 1))
sketch19.addConstraint(Sketcher.Constraint("Diameter", 0, 3.0))
pad19 = body24.newObject("PartDesign::Pad", "Pad018")
pad19.Profile = sketch19
pad19.Length = 50
body25 = doc.addObject("PartDesign::Body", "Body024")
doc.recompute()

body24.Placement = App.Placement(V(-35.355339, 35.355339, -15), App.Rotation(V(0, 0, 1), 135))
boolean19 = body25.newObject("PartDesign::Boolean", "Boolean018")
boolean19.Type = "Fuse"
boolean19.addObjects([body24])
body26 = doc.addObject("PartDesign::Body", "Body025")

# Sketch on XY plane
sketch20 = body26.newObject("Sketcher::SketchObject", "Sketch019")
sketch20.AttachmentSupport = (doc.getObject("XY_Plane025"), [""])
sketch20.MapMode = "FlatFace"
sketch20.AttachmentOffset = App.Placement(V(0, 0, -15), App.Rotation())
sketch20.addGeometry(Part.Circle(V(-50, 0, 0), V(0, 0, 1), 1.5), False)
sketch20.addConstraint(Sketcher.Constraint("PointOnObject", 0, 3, -1))
sketch20.addConstraint(Sketcher.Constraint("Diameter", 0, 3.0))
sketch20.addConstraint(Sketcher.Constraint("DistanceX", 0, 3, -1, 1, 50.0))
pad20 = body26.newObject("PartDesign::Pad", "Pad019")
pad20.Profile = sketch20
pad20.Length = 50
body27 = doc.addObject("PartDesign::Body", "Body026")

# Sketch on XY plane
sketch21 = body27.newObject("Sketcher::SketchObject", "Sketch020")
sketch21.AttachmentSupport = (doc.getObject("XY_Plane026"), [""])
sketch21.MapMode = "FlatFace"
sketch21.addGeometry(Part.Circle(V(0, 0, 0), V(0, 0, 1), 1.5), False)
sketch21.addConstraint(Sketcher.Constraint("Coincident", 0, 3, -1, 1))
sketch21.addConstraint(Sketcher.Constraint("Diameter", 0, 3.0))
pad21 = body27.newObject("PartDesign::Pad", "Pad020")
pad21.Profile = sketch21
pad21.Length = 50
body28 = doc.addObject("PartDesign::Body", "Body027")
doc.recompute()

body27.Placement = App.Placement(V(-35.355339, -35.355339, -15), App.Rotation(V(0, 0, 1), 225))
boolean20 = body28.newObject("PartDesign::Boolean", "Boolean019")
boolean20.Type = "Fuse"
boolean20.addObjects([body27])
body29 = doc.addObject("PartDesign::Body", "Body028")

# Sketch on XY plane
sketch22 = body29.newObject("Sketcher::SketchObject", "Sketch021")
sketch22.AttachmentSupport = (doc.getObject("XY_Plane028"), [""])
sketch22.MapMode = "FlatFace"
sketch22.AttachmentOffset = App.Placement(V(0, 0, -15), App.Rotation())
sketch22.addGeometry(Part.Circle(V(0, -50, 0), V(0, 0, 1), 1.5), False)
sketch22.addConstraint(Sketcher.Constraint("PointOnObject", 0, 3, -2))
sketch22.addConstraint(Sketcher.Constraint("Diameter", 0, 3.0))
sketch22.addConstraint(Sketcher.Constraint("DistanceY", 0, 3, -1, 1, 50.0))
pad22 = body29.newObject("PartDesign::Pad", "Pad021")
pad22.Profile = sketch22
pad22.Length = 50
body30 = doc.addObject("PartDesign::Body", "Body029")

# Sketch on XY plane
sketch23 = body30.newObject("Sketcher::SketchObject", "Sketch022")
sketch23.AttachmentSupport = (doc.getObject("XY_Plane029"), [""])
sketch23.MapMode = "FlatFace"
sketch23.addGeometry(Part.Circle(V(0, 0, 0), V(0, 0, 1), 1.5), False)
sketch23.addConstraint(Sketcher.Constraint("Coincident", 0, 3, -1, 1))
sketch23.addConstraint(Sketcher.Constraint("Diameter", 0, 3.0))
pad23 = body30.newObject("PartDesign::Pad", "Pad022")
pad23.Profile = sketch23
pad23.Length = 50
body31 = doc.addObject("PartDesign::Body", "Body030")
doc.recompute()

body30.Placement = App.Placement(V(35.355339, -35.355339, -15), App.Rotation(V(0, 0, -1), 45))
boolean21 = body31.newObject("PartDesign::Boolean", "Boolean020")
boolean21.Type = "Fuse"
boolean21.addObjects([body30])
body32 = doc.addObject("PartDesign::Body", "Body031")
body32.AllowCompound = True

# Sketch on XY plane
sketch24 = body32.newObject("Sketcher::SketchObject", "Sketch023")
sketch24.AttachmentSupport = (doc.getObject("XY_Plane031"), [""])
sketch24.MapMode = "FlatFace"
sketch24.AttachmentOffset = App.Placement(V(0, 0, -15), App.Rotation())
sketch24.addGeometry(Part.Circle(V(50, 0, 0), V(0, 0, 1), 1.5), False)
sketch24.addConstraint(Sketcher.Constraint("PointOnObject", 0, 3, -1))
sketch24.addConstraint(Sketcher.Constraint("Diameter", 0, 3.0))
sketch24.addConstraint(Sketcher.Constraint("DistanceX", -1, 1, 0, 3, 50.0))
pad24 = body32.newObject("PartDesign::Pad", "Pad023")
pad24.Profile = sketch24
pad24.Length = 50
doc.recompute()

boolean22 = body32.newObject("PartDesign::Boolean", "Boolean021")
boolean22.Type = "Fuse"
boolean22.addObjects([body22])
doc.recompute()

boolean23 = body32.newObject("PartDesign::Boolean", "Boolean022")
boolean23.Type = "Fuse"
boolean23.addObjects([body23])
doc.recompute()

boolean24 = body32.newObject("PartDesign::Boolean", "Boolean023")
boolean24.Type = "Fuse"
boolean24.addObjects([body25])
doc.recompute()

boolean25 = body32.newObject("PartDesign::Boolean", "Boolean024")
boolean25.Type = "Fuse"
boolean25.addObjects([body26])
doc.recompute()

boolean26 = body32.newObject("PartDesign::Boolean", "Boolean025")
boolean26.Type = "Fuse"
boolean26.addObjects([body28])
doc.recompute()

boolean27 = body32.newObject("PartDesign::Boolean", "Boolean026")
boolean27.Type = "Fuse"
boolean27.addObjects([body29])
doc.recompute()

boolean28 = body32.newObject("PartDesign::Boolean", "Boolean027")
boolean28.Type = "Fuse"
boolean28.addObjects([body31])
body33 = doc.addObject("PartDesign::Body", "Body032")
body33.AllowCompound = True
doc.recompute()

body32.Placement = App.Placement(V(0, 0, -9), App.Rotation(V(0, 0, 1), 0))
boolean29 = body33.newObject("PartDesign::Boolean", "Boolean028")
boolean29.Type = "Fuse"
boolean29.addObjects([body32])
body34 = doc.addObject("PartDesign::Body", "Body033")

# Sketch on XZ plane
sketch25 = body34.newObject("Sketcher::SketchObject", "Sketch024")
sketch25.AttachmentSupport = (doc.getObject("XZ_Plane033"), [""])
sketch25.MapMode = "FlatFace"
sketch25.addGeometry(Part.Circle(V(46, 29, 0), V(0, 0, 1), 3.1), False)
sketch25.addConstraint(Sketcher.Constraint("Diameter", 0, 6.2))
sketch25.addConstraint(Sketcher.Constraint("DistanceX", -1, 1, 0, 3, 46.0))
sketch25.addConstraint(Sketcher.Constraint("DistanceY", -1, 1, 0, 3, 29.0))
revolution = body34.newObject("PartDesign::Revolution", "Revolution")
revolution.Profile = sketch25
revolution.ReferenceAxis = (sketch25, ["V_Axis"])
revolution.Angle = 360
body35 = doc.addObject("PartDesign::Body", "Body034")

# Sketch on XY plane
sketch26 = body35.newObject("Sketcher::SketchObject", "Sketch025")
sketch26.AttachmentSupport = (doc.getObject("XY_Plane034"), [""])
sketch26.MapMode = "FlatFace"
sketch26.AttachmentOffset = App.Placement(V(0, 0, 20), App.Rotation())
sketch26.addGeometry(Part.Circle(V(0, 0, 0), V(0, 0, 1), 47), False)
sketch26.addConstraint(Sketcher.Constraint("Coincident", 0, 3, -1, 1))
sketch26.addConstraint(Sketcher.Constraint("Diameter", 0, 94.0))
pad25 = body35.newObject("PartDesign::Pad", "Pad024")
pad25.Profile = sketch26
pad25.Length = 17
body36 = doc.addObject("PartDesign::Body", "Body035")
body36.AllowCompound = True

# Sketch on XY plane
sketch27 = body36.newObject("Sketcher::SketchObject", "Sketch026")
sketch27.AttachmentSupport = (doc.getObject("XY_Plane035"), [""])
sketch27.MapMode = "FlatFace"
sketch27.AttachmentOffset = App.Placement(V(0, 0, 20), App.Rotation())
sketch27.addGeometry(Part.LineSegment(V(0, 54, 0), V(0, -54, 0)), False)
sketch27.addGeometry(Part.LineSegment(V(0, -54, 0), V(46, -54, 0)), False)
sketch27.addGeometry(Part.LineSegment(V(46, -54, 0), V(46, 54, 0)), False)
sketch27.addGeometry(Part.LineSegment(V(46, 54, 0), V(0, 54, 0)), False)
sketch27.addConstraint(Sketcher.Constraint("Coincident", 0, 2, 1, 1))
sketch27.addConstraint(Sketcher.Constraint("Coincident", 1, 2, 2, 1))
sketch27.addConstraint(Sketcher.Constraint("Coincident", 2, 2, 3, 1))
sketch27.addConstraint(Sketcher.Constraint("Coincident", 3, 2, 0, 1))
sketch27.addConstraint(Sketcher.Constraint("Vertical", 0))
sketch27.addConstraint(Sketcher.Constraint("Horizontal", 1))
sketch27.addConstraint(Sketcher.Constraint("Vertical", 2))
sketch27.addConstraint(Sketcher.Constraint("Horizontal", 3))
sketch27.addConstraint(Sketcher.Constraint("Symmetric", 0, 2, 3, 2, -1, 1))
sketch27.addConstraint(Sketcher.Constraint("DistanceX", 1, 1, 1, 2, 46.0))
sketch27.addConstraint(Sketcher.Constraint("DistanceY", 0, 2, 0, 1, 108.0))
pad26 = body36.newObject("PartDesign::Pad", "Pad025")
pad26.Profile = sketch27
pad26.Length = 17
doc.recompute()

boolean30 = body36.newObject("PartDesign::Boolean", "Boolean029")
boolean30.Type = "Cut"
boolean30.addObjects([body35])
doc.recompute()

boolean31 = body36.newObject("PartDesign::Boolean", "Boolean030")
boolean31.Type = "Cut"
boolean31.addObjects([body34])
doc.recompute()

boolean32 = body36.newObject("PartDesign::Boolean", "Boolean031")
boolean32.Type = "Cut"
boolean32.addObjects([body33])
doc.recompute()

boolean33 = body36.newObject("PartDesign::Boolean", "Boolean032")
boolean33.Type = "Cut"
boolean33.addObjects([body20])
doc.recompute()

boolean34 = body36.newObject("PartDesign::Boolean", "Boolean033")
boolean34.Type = "Cut"
boolean34.addObjects([body8])
doc.recompute()

boolean35 = body36.newObject("PartDesign::Boolean", "Boolean034")
boolean35.Type = "Cut"
boolean35.addObjects([body4])

doc.recompute()
